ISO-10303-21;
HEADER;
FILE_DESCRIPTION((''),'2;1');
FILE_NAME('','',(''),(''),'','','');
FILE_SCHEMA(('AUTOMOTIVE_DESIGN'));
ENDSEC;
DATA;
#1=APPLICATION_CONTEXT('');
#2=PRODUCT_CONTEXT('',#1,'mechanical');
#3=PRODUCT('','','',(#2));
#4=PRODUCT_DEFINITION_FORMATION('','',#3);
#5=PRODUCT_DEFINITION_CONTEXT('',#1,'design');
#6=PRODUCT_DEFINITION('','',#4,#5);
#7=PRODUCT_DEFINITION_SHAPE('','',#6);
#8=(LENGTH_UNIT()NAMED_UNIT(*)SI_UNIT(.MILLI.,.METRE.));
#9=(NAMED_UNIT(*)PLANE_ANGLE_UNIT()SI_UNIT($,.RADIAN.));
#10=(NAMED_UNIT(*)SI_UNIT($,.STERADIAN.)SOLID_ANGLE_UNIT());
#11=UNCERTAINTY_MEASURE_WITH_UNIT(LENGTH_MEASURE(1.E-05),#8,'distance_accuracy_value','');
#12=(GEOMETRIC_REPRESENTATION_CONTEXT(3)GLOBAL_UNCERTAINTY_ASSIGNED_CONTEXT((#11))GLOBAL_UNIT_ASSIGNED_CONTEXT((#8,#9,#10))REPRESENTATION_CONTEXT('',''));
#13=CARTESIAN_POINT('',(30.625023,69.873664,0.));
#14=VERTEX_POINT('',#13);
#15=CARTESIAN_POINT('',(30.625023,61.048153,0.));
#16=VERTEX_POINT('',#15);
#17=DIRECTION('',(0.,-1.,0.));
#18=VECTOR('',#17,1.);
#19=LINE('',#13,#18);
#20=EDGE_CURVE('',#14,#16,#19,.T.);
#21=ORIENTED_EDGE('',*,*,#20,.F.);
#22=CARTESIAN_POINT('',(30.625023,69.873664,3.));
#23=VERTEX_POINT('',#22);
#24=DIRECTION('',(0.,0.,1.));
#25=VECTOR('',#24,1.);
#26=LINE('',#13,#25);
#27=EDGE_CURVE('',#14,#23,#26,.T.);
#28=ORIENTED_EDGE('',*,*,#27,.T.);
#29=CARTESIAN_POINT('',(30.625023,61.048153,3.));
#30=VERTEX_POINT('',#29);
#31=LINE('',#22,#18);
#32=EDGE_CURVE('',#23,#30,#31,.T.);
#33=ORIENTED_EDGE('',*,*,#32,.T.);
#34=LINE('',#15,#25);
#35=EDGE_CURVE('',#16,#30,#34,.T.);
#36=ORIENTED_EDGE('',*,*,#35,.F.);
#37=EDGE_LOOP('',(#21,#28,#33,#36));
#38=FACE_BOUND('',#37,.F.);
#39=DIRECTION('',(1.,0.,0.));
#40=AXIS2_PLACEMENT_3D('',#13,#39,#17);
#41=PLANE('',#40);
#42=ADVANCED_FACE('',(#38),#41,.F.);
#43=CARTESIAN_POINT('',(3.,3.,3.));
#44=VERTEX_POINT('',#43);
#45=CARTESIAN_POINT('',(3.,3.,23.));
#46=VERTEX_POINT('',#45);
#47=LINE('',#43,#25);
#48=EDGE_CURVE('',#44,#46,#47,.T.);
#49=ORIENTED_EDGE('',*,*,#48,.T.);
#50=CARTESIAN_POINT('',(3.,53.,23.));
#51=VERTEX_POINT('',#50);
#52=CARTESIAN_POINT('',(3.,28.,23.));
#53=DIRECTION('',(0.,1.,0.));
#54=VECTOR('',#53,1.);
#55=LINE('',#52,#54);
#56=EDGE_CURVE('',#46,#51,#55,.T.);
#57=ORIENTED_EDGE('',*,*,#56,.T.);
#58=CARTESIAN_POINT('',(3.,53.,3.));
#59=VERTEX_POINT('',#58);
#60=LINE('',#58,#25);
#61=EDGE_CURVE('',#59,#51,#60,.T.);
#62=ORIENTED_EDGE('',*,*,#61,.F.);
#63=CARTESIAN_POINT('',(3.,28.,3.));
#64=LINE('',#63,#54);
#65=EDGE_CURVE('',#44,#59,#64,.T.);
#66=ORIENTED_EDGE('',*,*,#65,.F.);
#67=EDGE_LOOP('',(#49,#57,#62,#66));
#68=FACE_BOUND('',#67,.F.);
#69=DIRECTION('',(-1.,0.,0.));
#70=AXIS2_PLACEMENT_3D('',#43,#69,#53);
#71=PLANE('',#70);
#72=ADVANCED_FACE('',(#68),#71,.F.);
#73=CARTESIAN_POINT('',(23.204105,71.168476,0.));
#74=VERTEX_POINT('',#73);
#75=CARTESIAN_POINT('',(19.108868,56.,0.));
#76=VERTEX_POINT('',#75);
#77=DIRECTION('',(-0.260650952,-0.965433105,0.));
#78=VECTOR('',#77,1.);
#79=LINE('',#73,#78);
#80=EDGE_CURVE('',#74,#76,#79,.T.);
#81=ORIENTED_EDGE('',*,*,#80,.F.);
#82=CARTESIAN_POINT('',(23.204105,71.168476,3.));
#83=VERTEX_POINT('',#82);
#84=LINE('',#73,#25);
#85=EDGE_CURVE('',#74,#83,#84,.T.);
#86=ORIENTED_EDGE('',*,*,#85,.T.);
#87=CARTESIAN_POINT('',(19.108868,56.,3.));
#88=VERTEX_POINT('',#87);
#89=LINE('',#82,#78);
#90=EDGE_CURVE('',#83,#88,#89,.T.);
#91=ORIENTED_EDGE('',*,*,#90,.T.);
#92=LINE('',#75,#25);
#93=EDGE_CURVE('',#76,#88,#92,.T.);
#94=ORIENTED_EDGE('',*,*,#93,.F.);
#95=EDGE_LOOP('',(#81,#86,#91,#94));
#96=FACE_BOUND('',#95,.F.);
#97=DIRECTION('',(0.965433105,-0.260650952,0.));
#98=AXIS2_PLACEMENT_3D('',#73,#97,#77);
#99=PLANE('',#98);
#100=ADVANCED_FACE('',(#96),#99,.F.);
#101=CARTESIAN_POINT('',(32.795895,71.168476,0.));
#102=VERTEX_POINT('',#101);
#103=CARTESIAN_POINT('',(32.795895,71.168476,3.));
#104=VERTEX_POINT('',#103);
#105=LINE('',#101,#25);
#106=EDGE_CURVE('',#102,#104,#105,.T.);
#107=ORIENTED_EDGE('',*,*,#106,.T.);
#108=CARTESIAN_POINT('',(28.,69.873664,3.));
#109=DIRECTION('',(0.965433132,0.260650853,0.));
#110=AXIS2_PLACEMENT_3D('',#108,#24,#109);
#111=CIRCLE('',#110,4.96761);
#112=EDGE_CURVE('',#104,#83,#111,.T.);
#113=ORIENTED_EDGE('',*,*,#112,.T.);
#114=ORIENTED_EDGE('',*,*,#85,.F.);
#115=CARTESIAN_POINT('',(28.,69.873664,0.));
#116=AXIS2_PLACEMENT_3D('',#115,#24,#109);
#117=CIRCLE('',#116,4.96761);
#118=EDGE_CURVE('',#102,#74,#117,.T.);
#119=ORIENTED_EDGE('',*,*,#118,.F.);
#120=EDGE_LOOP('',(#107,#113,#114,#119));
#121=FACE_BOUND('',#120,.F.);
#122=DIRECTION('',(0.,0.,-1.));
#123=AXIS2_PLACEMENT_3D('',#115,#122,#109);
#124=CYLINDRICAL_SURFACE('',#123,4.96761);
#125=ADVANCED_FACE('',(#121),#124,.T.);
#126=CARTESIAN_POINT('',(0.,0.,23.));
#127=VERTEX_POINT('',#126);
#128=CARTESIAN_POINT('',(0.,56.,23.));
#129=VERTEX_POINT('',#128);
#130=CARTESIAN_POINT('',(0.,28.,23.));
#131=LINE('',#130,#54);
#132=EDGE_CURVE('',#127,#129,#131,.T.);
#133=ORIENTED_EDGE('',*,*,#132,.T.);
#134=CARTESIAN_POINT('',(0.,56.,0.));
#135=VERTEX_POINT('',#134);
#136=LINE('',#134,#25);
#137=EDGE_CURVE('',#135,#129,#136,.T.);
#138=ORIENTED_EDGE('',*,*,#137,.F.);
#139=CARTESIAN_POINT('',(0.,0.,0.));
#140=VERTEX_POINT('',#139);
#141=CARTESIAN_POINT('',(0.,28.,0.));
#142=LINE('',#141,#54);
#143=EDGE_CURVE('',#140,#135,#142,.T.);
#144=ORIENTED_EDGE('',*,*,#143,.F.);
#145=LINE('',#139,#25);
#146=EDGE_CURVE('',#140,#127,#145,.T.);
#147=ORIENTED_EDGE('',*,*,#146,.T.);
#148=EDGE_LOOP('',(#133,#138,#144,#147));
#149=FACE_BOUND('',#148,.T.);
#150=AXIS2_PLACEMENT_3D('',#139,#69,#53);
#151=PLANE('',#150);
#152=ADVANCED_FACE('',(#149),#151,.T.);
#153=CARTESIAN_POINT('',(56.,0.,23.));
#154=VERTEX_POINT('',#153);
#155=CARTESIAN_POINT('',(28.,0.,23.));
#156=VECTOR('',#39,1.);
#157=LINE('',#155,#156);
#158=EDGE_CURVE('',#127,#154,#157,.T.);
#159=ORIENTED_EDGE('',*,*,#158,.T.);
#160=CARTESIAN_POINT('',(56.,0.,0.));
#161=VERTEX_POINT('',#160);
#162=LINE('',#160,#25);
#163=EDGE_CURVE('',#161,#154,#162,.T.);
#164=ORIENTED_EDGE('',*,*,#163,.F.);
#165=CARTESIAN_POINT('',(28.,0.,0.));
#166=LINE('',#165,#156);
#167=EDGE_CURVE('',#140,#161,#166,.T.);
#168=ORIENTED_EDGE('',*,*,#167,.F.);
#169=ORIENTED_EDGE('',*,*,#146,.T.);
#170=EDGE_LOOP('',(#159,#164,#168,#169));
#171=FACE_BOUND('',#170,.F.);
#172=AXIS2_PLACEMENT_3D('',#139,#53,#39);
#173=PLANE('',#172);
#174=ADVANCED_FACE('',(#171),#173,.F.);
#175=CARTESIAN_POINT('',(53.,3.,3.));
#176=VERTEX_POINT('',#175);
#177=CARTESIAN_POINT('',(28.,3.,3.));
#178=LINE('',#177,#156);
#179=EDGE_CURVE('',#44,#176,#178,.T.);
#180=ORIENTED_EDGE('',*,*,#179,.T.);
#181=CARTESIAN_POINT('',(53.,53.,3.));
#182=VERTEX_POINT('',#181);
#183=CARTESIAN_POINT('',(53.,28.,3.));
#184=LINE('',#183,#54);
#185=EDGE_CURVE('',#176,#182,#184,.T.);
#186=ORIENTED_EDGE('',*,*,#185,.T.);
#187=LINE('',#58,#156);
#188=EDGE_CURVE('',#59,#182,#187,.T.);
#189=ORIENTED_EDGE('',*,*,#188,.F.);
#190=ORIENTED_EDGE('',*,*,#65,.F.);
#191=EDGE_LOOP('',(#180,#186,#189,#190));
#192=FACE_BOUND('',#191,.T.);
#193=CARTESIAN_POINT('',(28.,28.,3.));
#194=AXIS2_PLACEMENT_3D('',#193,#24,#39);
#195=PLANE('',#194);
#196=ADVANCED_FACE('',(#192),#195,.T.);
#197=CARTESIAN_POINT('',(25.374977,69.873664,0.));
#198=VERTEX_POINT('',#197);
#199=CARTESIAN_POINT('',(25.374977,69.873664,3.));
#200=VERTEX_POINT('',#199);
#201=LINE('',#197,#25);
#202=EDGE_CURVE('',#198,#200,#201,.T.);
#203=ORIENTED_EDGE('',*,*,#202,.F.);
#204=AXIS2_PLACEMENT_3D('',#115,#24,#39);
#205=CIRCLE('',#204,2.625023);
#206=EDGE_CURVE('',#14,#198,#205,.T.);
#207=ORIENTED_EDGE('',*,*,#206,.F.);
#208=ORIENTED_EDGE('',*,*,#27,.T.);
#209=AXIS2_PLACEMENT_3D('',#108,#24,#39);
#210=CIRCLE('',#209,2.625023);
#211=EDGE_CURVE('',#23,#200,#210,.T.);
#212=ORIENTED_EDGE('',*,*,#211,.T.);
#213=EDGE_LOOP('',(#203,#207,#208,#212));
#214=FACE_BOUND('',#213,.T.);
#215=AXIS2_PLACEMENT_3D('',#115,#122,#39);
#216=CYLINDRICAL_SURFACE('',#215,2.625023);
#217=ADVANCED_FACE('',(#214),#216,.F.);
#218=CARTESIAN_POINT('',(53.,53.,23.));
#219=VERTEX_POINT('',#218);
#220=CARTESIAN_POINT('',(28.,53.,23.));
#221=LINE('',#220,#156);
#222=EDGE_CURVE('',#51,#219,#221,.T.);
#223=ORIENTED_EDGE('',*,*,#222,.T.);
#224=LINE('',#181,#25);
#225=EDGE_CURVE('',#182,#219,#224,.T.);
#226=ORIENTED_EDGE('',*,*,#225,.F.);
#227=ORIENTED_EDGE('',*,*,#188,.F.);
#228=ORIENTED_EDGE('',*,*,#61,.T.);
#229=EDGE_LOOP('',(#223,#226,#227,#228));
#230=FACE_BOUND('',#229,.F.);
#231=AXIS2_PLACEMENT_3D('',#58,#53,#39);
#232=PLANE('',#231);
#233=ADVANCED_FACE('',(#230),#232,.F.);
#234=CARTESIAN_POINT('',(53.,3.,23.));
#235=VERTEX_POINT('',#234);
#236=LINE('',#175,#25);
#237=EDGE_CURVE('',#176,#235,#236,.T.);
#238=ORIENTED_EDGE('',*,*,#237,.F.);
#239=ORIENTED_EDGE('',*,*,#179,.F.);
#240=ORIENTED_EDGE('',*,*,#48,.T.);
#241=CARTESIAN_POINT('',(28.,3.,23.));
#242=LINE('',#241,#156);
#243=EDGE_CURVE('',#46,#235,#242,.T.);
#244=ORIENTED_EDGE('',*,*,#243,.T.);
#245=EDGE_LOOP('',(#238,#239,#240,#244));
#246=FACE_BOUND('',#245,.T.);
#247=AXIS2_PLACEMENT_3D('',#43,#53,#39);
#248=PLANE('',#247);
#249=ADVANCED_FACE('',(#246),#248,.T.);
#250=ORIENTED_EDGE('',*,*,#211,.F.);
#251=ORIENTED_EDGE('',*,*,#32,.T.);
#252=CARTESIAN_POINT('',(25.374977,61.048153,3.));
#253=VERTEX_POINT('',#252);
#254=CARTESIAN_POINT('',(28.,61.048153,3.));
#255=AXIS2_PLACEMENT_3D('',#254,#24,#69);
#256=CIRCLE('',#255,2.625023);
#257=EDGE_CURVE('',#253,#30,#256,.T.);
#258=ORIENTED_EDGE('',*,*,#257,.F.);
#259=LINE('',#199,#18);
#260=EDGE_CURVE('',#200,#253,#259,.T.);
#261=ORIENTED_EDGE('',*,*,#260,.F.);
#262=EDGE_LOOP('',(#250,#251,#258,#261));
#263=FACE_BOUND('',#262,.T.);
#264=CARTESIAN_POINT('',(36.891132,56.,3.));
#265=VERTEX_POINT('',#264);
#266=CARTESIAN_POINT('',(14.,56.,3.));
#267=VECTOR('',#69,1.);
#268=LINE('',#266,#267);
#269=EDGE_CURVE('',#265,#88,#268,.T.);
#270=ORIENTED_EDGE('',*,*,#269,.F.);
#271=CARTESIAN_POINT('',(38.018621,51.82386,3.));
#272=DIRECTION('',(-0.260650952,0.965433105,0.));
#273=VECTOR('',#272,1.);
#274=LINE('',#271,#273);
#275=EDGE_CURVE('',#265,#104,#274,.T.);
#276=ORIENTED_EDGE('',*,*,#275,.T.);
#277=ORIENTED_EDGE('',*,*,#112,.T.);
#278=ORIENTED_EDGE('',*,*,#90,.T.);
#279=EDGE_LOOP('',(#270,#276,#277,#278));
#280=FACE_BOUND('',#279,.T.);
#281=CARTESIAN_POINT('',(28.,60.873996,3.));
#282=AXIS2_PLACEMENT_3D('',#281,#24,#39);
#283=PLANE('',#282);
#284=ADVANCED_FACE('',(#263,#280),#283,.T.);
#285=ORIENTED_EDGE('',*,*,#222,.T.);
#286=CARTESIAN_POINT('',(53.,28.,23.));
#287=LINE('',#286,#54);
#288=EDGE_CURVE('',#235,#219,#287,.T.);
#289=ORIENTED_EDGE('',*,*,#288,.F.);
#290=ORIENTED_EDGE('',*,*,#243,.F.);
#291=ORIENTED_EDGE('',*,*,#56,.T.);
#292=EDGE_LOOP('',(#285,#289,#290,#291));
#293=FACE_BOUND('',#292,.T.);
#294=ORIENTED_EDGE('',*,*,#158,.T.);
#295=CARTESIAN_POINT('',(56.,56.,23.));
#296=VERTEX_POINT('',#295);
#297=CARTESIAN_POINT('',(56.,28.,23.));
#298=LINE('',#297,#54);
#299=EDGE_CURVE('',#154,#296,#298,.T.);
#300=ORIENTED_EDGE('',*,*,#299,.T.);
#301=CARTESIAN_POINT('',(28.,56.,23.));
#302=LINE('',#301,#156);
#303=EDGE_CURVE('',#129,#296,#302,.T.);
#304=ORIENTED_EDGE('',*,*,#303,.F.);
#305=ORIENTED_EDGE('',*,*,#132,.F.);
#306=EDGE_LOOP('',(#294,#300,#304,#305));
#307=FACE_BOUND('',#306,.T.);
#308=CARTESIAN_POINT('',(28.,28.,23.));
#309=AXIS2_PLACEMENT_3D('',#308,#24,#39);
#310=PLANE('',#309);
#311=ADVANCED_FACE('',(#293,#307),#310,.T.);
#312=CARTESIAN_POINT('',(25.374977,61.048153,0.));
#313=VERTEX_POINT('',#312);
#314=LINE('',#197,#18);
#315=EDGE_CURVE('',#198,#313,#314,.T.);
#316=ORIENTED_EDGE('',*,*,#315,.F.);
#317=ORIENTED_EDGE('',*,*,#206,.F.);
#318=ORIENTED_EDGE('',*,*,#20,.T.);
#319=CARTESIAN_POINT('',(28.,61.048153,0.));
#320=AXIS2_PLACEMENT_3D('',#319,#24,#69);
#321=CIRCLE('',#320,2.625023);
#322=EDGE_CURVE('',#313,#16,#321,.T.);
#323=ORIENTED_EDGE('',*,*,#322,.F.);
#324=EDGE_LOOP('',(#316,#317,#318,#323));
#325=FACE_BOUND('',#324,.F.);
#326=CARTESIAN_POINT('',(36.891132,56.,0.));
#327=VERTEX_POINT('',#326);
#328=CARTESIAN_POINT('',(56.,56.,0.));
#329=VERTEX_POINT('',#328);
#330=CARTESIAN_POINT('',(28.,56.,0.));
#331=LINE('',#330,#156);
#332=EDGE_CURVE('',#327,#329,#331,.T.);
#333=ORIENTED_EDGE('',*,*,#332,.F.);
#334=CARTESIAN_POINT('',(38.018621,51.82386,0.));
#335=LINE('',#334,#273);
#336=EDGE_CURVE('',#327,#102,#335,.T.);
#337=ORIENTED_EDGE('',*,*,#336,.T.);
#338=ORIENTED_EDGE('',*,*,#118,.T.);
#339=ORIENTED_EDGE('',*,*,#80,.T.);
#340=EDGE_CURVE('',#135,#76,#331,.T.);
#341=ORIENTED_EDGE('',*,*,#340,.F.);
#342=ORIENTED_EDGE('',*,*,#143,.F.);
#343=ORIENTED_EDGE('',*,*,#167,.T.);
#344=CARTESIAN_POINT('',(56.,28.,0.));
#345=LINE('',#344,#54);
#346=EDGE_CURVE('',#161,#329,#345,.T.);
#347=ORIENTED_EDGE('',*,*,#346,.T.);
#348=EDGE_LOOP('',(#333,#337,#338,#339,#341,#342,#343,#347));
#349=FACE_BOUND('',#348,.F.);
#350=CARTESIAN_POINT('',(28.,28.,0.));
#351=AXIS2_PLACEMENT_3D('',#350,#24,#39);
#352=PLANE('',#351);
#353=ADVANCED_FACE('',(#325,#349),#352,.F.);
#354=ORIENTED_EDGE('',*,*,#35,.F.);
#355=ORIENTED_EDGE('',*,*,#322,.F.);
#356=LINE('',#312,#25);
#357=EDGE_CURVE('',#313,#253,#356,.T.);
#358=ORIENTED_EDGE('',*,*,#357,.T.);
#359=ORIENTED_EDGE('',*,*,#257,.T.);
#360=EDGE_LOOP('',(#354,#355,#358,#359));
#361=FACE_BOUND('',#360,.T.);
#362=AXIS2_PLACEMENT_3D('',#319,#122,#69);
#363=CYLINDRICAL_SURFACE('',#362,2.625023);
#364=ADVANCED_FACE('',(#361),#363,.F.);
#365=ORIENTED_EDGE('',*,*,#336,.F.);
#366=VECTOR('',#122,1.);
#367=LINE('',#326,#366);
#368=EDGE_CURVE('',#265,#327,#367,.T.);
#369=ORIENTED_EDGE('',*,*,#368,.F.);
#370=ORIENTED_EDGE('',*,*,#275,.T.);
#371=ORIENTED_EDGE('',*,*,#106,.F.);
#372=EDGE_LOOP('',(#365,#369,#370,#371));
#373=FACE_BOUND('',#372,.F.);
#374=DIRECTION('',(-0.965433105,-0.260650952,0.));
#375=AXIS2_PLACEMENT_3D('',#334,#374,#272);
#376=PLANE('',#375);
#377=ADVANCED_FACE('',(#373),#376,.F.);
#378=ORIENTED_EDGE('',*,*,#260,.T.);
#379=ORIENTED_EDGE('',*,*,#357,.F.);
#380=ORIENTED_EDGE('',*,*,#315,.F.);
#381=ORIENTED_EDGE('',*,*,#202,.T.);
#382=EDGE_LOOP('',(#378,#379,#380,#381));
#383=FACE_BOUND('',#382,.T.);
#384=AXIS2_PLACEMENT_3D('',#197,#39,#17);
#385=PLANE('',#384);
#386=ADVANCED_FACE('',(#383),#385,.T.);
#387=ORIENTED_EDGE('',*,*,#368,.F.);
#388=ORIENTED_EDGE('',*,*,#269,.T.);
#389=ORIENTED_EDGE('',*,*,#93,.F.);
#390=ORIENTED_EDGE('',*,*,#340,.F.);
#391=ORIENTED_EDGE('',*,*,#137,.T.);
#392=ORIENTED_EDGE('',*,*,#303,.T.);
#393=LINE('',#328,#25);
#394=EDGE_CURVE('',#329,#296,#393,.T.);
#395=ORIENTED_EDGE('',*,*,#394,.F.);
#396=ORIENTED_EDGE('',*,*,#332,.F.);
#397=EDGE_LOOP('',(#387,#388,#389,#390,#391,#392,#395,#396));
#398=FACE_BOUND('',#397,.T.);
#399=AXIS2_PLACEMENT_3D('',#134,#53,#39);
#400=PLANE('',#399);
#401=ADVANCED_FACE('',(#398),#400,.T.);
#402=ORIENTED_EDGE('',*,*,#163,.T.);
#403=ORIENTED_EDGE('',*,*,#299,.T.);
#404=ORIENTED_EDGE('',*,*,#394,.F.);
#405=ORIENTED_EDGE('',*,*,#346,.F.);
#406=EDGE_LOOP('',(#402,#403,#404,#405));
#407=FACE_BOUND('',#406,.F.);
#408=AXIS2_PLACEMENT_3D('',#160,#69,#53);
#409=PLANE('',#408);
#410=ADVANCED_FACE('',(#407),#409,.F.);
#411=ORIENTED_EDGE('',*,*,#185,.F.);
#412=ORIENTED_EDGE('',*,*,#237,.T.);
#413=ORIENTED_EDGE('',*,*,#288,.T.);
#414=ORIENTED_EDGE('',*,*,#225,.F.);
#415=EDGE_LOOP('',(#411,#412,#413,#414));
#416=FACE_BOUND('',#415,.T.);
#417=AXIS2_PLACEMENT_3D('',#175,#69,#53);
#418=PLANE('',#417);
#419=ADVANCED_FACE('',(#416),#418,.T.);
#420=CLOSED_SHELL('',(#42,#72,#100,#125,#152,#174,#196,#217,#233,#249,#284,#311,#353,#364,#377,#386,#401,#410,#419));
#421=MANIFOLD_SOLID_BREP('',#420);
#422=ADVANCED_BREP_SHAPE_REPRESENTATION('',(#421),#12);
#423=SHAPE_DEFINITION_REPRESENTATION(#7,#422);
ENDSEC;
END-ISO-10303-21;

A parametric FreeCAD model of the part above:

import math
import FreeCAD as App
import Part
import Sketcher
Q = App.Units.Quantity


def add_polygon(sketch, points):
    """Adds a closed chain of lines whose ends are joined by coincident constraints."""
    first, n = sketch.GeometryCount, len(points)
    for a, b in zip(points, points[1:] + points[:1]):
        sketch.addGeometry(Part.LineSegment(App.Vector(*a, 0), App.Vector(*b, 0)), False)
    for i in range(n):
        sketch.addConstraint(Sketcher.Constraint("Coincident", first + i, 2, first + (i + 1) % n, 1))

doc = App.newDocument("Part")
params = doc.addObject("Spreadsheet::Sheet", "Params")
for row, (alias, value) in enumerate([
    ("sketch1_width", "50 mm"),
    ("pad1_length", "20 mm"),
    ("sketch2_width", "56 mm"),
    ("pad2_length", "23 mm"),
    ("pad3_length", "3 mm"),
], start=1):
    params.set(f"A{row}", alias)
    params.set(f"B{row}", "=" + value)
    params.setAlias(f"B{row}", alias)

body = doc.addObject("PartDesign::Body", "Body")

# Sketch on XY plane
sketch1 = body.newObject("Sketcher::SketchObject", "Sketch")
sketch1.AttachmentSupport = (doc.getObject("XY_Plane"), [""])
sketch1.MapMode = "FlatFace"
sketch1.AttachmentOffset = App.Placement(App.Vector(0, 0, 3), App.Rotation())
add_polygon(sketch1, [(3, 53), (3, 3), (53, 3), (53, 53)])  # lines 0-3
sketch1.addConstraint(Sketcher.Constraint("Vertical", 0))
sketch1.addConstraint(Sketcher.Constraint("Horizontal", 1))
sketch1.addConstraint(Sketcher.Constraint("Vertical", 2))
sketch1.addConstraint(Sketcher.Constraint("Horizontal", 3))
sketch1.addConstraint(Sketcher.Constraint("Equal", 3, 0))
sketch1.addConstraint(Sketcher.Constraint("DistanceX", 1, 1, 1, 2, Q("50 mm")))
sketch1.addConstraint(Sketcher.Constraint("DistanceX", -1, 1, 0, 2, Q("3 mm")))
sketch1.addConstraint(Sketcher.Constraint("DistanceY", -1, 1, 0, 2, Q("3 mm")))
sketch1.setExpression("Constraints[9]", "Params.sketch1_width")
pad1 = body.newObject("PartDesign::Pad", "Pad")
pad1.Profile = sketch1
pad1.setExpression("Length", "Params.pad1_length")
body2 = doc.addObject("PartDesign::Body", "Body001")

# Sketch on XY plane
sketch2 = body2.newObject("Sketcher::SketchObject", "Sketch001")
sketch2.AttachmentSupport = (doc.getObject("XY_Plane001"), [""])
sketch2.MapMode = "FlatFace"
add_polygon(sketch2, [(0, 56), (0, 0), (56, 0), (56, 56)])  # lines 0-3
sketch2.addConstraint(Sketcher.Constraint("Vertical", 0))
sketch2.addConstraint(Sketcher.Constraint("Horizontal", 1))
sketch2.addConstraint(Sketcher.Constraint("Vertical", 2))
sketch2.addConstraint(Sketcher.Constraint("Horizontal", 3))
sketch2.addConstraint(Sketcher.Constraint("Coincident", 0, 2, -1, 1))
sketch2.addConstraint(Sketcher.Constraint("Equal", 3, 0))
sketch2.addConstraint(Sketcher.Constraint("DistanceX", 1, 1, 1, 2, Q("56 mm")))
sketch2.setExpression("Constraints[10]", "Params.sketch2_width")
pad2 = body2.newObject("PartDesign::Pad", "Pad001")
pad2.Profile = sketch2
pad2.setExpression("Length", "Params.pad2_length")
doc.recompute()

boolean = body2.newObject("PartDesign::Boolean", "Boolean")
boolean.Type = "Cut"
boolean.addObjects([body])
body3 = doc.addObject("PartDesign::Body", "Body002")

# Sketch on XY plane
sketch3 = body3.newObject("Sketcher::SketchObject", "Sketch002")
sketch3.AttachmentSupport = (doc.getObject("XY_Plane002"), [""])
sketch3.MapMode = "FlatFace"
sketch3.addGeometry(Part.LineSegment(App.Vector(18, 51.8, 0), App.Vector(38, 51.8, 0)), False)
sketch3.addGeometry(Part.LineSegment(App.Vector(38, 51.8, 0), App.Vector(32.8, 71.2, 0)), False)
sketch3.addGeometry(Part.ArcOfCircle(Part.Circle(App.Vector(28, 69.9, 0), App.Vector(0, 0, 1), 5), math.radians(15), math.radians(165)), False)
sketch3.addGeometry(Part.LineSegment(App.Vector(23.2, 71.2, 0), App.Vector(18, 51.8, 0)), False)
sketch3.addGeometry(Part.ArcOfCircle(Part.Circle(App.Vector(28, 69.9, 0), App.Vector(0, 0, 1), 2.6), math.radians(0), math.radians(180)), False)
sketch3.addGeometry(Part.LineSegment(App.Vector(30.6, 69.9, 0), App.Vector(30.6, 61, 0)), False)
sketch3.addGeometry(Part.ArcOfCircle(Part.Circle(App.Vector(28, 61, 0), App.Vector(0, 0, 1), 2.6), math.radians(180), math.radians(360)), False)
sketch3.addGeometry(Part.LineSegment(App.Vector(25.4, 61, 0), App.Vector(25.4, 69.9, 0)), False)
sketch3.addConstraint(Sketcher.Constraint("Coincident", 0, 2, 1, 1))
sketch3.addConstraint(Sketcher.Constraint("Tangent", 1, 2, 2, 1))
sketch3.addConstraint(Sketcher.Constraint("Tangent", 2, 2, 3, 1))
sketch3.addConstraint(Sketcher.Constraint("Coincident", 3, 2, 0, 1))
sketch3.addConstraint(Sketcher.Constraint("Tangent", 4, 1, 5, 1))
sketch3.addConstraint(Sketcher.Constraint("Tangent", 5, 2, 6, 2))
sketch3.addConstraint(Sketcher.Constraint("Tangent", 6, 1, 7, 1))
sketch3.addConstraint(Sketcher.Constraint("Tangent", 7, 2, 4, 2))
sketch3.addConstraint(Sketcher.Constraint("Horizontal", 0))
sketch3.addConstraint(Sketcher.Constraint("Vertical", 5))
sketch3.addConstraint(Sketcher.Constraint("Vertical", 7))
sketch3.addConstraint(Sketcher.Constraint("Coincident", 4, 3, 2, 3))
sketch3.addConstraint(Sketcher.Constraint("Horizontal", 1, 2, 2, 2))
sketch3.addConstraint(Sketcher.Constraint("DistanceX", -1, 1, 2, 3, Q("28 mm")))
sketch3.addConstraint(Sketcher.Constraint("Radius", 2, Q("4.96761 mm")))
sketch3.addConstraint(Sketcher.Constraint("Radius", 4, Q("2.625023 mm")))
sketch3.addConstraint(Sketcher.Constraint("DistanceY", 5, 2, 5, 1, Q("8.825511 mm")))
sketch3.addConstraint(Sketcher.Constraint("Distance", 1, Q("20.037241 mm")))
sketch3.addConstraint(Sketcher.Constraint("DistanceX", 0, 1, 0, 2, Q("20.037242 mm")))
sketch3.addConstraint(Sketcher.Constraint("DistanceY", -1, 1, 0, 2, Q("51.82386 mm")))
pad3 = body3.newObject("PartDesign::Pad", "Pad002")
pad3.Profile = sketch3
pad3.setExpression("Length", "Params.pad3_length")
doc.recompute()

boolean2 = body3.newObject("PartDesign::Boolean", "Boolean001")
boolean2.Type = "Fuse"
boolean2.addObjects([body2])

doc.recompute()
